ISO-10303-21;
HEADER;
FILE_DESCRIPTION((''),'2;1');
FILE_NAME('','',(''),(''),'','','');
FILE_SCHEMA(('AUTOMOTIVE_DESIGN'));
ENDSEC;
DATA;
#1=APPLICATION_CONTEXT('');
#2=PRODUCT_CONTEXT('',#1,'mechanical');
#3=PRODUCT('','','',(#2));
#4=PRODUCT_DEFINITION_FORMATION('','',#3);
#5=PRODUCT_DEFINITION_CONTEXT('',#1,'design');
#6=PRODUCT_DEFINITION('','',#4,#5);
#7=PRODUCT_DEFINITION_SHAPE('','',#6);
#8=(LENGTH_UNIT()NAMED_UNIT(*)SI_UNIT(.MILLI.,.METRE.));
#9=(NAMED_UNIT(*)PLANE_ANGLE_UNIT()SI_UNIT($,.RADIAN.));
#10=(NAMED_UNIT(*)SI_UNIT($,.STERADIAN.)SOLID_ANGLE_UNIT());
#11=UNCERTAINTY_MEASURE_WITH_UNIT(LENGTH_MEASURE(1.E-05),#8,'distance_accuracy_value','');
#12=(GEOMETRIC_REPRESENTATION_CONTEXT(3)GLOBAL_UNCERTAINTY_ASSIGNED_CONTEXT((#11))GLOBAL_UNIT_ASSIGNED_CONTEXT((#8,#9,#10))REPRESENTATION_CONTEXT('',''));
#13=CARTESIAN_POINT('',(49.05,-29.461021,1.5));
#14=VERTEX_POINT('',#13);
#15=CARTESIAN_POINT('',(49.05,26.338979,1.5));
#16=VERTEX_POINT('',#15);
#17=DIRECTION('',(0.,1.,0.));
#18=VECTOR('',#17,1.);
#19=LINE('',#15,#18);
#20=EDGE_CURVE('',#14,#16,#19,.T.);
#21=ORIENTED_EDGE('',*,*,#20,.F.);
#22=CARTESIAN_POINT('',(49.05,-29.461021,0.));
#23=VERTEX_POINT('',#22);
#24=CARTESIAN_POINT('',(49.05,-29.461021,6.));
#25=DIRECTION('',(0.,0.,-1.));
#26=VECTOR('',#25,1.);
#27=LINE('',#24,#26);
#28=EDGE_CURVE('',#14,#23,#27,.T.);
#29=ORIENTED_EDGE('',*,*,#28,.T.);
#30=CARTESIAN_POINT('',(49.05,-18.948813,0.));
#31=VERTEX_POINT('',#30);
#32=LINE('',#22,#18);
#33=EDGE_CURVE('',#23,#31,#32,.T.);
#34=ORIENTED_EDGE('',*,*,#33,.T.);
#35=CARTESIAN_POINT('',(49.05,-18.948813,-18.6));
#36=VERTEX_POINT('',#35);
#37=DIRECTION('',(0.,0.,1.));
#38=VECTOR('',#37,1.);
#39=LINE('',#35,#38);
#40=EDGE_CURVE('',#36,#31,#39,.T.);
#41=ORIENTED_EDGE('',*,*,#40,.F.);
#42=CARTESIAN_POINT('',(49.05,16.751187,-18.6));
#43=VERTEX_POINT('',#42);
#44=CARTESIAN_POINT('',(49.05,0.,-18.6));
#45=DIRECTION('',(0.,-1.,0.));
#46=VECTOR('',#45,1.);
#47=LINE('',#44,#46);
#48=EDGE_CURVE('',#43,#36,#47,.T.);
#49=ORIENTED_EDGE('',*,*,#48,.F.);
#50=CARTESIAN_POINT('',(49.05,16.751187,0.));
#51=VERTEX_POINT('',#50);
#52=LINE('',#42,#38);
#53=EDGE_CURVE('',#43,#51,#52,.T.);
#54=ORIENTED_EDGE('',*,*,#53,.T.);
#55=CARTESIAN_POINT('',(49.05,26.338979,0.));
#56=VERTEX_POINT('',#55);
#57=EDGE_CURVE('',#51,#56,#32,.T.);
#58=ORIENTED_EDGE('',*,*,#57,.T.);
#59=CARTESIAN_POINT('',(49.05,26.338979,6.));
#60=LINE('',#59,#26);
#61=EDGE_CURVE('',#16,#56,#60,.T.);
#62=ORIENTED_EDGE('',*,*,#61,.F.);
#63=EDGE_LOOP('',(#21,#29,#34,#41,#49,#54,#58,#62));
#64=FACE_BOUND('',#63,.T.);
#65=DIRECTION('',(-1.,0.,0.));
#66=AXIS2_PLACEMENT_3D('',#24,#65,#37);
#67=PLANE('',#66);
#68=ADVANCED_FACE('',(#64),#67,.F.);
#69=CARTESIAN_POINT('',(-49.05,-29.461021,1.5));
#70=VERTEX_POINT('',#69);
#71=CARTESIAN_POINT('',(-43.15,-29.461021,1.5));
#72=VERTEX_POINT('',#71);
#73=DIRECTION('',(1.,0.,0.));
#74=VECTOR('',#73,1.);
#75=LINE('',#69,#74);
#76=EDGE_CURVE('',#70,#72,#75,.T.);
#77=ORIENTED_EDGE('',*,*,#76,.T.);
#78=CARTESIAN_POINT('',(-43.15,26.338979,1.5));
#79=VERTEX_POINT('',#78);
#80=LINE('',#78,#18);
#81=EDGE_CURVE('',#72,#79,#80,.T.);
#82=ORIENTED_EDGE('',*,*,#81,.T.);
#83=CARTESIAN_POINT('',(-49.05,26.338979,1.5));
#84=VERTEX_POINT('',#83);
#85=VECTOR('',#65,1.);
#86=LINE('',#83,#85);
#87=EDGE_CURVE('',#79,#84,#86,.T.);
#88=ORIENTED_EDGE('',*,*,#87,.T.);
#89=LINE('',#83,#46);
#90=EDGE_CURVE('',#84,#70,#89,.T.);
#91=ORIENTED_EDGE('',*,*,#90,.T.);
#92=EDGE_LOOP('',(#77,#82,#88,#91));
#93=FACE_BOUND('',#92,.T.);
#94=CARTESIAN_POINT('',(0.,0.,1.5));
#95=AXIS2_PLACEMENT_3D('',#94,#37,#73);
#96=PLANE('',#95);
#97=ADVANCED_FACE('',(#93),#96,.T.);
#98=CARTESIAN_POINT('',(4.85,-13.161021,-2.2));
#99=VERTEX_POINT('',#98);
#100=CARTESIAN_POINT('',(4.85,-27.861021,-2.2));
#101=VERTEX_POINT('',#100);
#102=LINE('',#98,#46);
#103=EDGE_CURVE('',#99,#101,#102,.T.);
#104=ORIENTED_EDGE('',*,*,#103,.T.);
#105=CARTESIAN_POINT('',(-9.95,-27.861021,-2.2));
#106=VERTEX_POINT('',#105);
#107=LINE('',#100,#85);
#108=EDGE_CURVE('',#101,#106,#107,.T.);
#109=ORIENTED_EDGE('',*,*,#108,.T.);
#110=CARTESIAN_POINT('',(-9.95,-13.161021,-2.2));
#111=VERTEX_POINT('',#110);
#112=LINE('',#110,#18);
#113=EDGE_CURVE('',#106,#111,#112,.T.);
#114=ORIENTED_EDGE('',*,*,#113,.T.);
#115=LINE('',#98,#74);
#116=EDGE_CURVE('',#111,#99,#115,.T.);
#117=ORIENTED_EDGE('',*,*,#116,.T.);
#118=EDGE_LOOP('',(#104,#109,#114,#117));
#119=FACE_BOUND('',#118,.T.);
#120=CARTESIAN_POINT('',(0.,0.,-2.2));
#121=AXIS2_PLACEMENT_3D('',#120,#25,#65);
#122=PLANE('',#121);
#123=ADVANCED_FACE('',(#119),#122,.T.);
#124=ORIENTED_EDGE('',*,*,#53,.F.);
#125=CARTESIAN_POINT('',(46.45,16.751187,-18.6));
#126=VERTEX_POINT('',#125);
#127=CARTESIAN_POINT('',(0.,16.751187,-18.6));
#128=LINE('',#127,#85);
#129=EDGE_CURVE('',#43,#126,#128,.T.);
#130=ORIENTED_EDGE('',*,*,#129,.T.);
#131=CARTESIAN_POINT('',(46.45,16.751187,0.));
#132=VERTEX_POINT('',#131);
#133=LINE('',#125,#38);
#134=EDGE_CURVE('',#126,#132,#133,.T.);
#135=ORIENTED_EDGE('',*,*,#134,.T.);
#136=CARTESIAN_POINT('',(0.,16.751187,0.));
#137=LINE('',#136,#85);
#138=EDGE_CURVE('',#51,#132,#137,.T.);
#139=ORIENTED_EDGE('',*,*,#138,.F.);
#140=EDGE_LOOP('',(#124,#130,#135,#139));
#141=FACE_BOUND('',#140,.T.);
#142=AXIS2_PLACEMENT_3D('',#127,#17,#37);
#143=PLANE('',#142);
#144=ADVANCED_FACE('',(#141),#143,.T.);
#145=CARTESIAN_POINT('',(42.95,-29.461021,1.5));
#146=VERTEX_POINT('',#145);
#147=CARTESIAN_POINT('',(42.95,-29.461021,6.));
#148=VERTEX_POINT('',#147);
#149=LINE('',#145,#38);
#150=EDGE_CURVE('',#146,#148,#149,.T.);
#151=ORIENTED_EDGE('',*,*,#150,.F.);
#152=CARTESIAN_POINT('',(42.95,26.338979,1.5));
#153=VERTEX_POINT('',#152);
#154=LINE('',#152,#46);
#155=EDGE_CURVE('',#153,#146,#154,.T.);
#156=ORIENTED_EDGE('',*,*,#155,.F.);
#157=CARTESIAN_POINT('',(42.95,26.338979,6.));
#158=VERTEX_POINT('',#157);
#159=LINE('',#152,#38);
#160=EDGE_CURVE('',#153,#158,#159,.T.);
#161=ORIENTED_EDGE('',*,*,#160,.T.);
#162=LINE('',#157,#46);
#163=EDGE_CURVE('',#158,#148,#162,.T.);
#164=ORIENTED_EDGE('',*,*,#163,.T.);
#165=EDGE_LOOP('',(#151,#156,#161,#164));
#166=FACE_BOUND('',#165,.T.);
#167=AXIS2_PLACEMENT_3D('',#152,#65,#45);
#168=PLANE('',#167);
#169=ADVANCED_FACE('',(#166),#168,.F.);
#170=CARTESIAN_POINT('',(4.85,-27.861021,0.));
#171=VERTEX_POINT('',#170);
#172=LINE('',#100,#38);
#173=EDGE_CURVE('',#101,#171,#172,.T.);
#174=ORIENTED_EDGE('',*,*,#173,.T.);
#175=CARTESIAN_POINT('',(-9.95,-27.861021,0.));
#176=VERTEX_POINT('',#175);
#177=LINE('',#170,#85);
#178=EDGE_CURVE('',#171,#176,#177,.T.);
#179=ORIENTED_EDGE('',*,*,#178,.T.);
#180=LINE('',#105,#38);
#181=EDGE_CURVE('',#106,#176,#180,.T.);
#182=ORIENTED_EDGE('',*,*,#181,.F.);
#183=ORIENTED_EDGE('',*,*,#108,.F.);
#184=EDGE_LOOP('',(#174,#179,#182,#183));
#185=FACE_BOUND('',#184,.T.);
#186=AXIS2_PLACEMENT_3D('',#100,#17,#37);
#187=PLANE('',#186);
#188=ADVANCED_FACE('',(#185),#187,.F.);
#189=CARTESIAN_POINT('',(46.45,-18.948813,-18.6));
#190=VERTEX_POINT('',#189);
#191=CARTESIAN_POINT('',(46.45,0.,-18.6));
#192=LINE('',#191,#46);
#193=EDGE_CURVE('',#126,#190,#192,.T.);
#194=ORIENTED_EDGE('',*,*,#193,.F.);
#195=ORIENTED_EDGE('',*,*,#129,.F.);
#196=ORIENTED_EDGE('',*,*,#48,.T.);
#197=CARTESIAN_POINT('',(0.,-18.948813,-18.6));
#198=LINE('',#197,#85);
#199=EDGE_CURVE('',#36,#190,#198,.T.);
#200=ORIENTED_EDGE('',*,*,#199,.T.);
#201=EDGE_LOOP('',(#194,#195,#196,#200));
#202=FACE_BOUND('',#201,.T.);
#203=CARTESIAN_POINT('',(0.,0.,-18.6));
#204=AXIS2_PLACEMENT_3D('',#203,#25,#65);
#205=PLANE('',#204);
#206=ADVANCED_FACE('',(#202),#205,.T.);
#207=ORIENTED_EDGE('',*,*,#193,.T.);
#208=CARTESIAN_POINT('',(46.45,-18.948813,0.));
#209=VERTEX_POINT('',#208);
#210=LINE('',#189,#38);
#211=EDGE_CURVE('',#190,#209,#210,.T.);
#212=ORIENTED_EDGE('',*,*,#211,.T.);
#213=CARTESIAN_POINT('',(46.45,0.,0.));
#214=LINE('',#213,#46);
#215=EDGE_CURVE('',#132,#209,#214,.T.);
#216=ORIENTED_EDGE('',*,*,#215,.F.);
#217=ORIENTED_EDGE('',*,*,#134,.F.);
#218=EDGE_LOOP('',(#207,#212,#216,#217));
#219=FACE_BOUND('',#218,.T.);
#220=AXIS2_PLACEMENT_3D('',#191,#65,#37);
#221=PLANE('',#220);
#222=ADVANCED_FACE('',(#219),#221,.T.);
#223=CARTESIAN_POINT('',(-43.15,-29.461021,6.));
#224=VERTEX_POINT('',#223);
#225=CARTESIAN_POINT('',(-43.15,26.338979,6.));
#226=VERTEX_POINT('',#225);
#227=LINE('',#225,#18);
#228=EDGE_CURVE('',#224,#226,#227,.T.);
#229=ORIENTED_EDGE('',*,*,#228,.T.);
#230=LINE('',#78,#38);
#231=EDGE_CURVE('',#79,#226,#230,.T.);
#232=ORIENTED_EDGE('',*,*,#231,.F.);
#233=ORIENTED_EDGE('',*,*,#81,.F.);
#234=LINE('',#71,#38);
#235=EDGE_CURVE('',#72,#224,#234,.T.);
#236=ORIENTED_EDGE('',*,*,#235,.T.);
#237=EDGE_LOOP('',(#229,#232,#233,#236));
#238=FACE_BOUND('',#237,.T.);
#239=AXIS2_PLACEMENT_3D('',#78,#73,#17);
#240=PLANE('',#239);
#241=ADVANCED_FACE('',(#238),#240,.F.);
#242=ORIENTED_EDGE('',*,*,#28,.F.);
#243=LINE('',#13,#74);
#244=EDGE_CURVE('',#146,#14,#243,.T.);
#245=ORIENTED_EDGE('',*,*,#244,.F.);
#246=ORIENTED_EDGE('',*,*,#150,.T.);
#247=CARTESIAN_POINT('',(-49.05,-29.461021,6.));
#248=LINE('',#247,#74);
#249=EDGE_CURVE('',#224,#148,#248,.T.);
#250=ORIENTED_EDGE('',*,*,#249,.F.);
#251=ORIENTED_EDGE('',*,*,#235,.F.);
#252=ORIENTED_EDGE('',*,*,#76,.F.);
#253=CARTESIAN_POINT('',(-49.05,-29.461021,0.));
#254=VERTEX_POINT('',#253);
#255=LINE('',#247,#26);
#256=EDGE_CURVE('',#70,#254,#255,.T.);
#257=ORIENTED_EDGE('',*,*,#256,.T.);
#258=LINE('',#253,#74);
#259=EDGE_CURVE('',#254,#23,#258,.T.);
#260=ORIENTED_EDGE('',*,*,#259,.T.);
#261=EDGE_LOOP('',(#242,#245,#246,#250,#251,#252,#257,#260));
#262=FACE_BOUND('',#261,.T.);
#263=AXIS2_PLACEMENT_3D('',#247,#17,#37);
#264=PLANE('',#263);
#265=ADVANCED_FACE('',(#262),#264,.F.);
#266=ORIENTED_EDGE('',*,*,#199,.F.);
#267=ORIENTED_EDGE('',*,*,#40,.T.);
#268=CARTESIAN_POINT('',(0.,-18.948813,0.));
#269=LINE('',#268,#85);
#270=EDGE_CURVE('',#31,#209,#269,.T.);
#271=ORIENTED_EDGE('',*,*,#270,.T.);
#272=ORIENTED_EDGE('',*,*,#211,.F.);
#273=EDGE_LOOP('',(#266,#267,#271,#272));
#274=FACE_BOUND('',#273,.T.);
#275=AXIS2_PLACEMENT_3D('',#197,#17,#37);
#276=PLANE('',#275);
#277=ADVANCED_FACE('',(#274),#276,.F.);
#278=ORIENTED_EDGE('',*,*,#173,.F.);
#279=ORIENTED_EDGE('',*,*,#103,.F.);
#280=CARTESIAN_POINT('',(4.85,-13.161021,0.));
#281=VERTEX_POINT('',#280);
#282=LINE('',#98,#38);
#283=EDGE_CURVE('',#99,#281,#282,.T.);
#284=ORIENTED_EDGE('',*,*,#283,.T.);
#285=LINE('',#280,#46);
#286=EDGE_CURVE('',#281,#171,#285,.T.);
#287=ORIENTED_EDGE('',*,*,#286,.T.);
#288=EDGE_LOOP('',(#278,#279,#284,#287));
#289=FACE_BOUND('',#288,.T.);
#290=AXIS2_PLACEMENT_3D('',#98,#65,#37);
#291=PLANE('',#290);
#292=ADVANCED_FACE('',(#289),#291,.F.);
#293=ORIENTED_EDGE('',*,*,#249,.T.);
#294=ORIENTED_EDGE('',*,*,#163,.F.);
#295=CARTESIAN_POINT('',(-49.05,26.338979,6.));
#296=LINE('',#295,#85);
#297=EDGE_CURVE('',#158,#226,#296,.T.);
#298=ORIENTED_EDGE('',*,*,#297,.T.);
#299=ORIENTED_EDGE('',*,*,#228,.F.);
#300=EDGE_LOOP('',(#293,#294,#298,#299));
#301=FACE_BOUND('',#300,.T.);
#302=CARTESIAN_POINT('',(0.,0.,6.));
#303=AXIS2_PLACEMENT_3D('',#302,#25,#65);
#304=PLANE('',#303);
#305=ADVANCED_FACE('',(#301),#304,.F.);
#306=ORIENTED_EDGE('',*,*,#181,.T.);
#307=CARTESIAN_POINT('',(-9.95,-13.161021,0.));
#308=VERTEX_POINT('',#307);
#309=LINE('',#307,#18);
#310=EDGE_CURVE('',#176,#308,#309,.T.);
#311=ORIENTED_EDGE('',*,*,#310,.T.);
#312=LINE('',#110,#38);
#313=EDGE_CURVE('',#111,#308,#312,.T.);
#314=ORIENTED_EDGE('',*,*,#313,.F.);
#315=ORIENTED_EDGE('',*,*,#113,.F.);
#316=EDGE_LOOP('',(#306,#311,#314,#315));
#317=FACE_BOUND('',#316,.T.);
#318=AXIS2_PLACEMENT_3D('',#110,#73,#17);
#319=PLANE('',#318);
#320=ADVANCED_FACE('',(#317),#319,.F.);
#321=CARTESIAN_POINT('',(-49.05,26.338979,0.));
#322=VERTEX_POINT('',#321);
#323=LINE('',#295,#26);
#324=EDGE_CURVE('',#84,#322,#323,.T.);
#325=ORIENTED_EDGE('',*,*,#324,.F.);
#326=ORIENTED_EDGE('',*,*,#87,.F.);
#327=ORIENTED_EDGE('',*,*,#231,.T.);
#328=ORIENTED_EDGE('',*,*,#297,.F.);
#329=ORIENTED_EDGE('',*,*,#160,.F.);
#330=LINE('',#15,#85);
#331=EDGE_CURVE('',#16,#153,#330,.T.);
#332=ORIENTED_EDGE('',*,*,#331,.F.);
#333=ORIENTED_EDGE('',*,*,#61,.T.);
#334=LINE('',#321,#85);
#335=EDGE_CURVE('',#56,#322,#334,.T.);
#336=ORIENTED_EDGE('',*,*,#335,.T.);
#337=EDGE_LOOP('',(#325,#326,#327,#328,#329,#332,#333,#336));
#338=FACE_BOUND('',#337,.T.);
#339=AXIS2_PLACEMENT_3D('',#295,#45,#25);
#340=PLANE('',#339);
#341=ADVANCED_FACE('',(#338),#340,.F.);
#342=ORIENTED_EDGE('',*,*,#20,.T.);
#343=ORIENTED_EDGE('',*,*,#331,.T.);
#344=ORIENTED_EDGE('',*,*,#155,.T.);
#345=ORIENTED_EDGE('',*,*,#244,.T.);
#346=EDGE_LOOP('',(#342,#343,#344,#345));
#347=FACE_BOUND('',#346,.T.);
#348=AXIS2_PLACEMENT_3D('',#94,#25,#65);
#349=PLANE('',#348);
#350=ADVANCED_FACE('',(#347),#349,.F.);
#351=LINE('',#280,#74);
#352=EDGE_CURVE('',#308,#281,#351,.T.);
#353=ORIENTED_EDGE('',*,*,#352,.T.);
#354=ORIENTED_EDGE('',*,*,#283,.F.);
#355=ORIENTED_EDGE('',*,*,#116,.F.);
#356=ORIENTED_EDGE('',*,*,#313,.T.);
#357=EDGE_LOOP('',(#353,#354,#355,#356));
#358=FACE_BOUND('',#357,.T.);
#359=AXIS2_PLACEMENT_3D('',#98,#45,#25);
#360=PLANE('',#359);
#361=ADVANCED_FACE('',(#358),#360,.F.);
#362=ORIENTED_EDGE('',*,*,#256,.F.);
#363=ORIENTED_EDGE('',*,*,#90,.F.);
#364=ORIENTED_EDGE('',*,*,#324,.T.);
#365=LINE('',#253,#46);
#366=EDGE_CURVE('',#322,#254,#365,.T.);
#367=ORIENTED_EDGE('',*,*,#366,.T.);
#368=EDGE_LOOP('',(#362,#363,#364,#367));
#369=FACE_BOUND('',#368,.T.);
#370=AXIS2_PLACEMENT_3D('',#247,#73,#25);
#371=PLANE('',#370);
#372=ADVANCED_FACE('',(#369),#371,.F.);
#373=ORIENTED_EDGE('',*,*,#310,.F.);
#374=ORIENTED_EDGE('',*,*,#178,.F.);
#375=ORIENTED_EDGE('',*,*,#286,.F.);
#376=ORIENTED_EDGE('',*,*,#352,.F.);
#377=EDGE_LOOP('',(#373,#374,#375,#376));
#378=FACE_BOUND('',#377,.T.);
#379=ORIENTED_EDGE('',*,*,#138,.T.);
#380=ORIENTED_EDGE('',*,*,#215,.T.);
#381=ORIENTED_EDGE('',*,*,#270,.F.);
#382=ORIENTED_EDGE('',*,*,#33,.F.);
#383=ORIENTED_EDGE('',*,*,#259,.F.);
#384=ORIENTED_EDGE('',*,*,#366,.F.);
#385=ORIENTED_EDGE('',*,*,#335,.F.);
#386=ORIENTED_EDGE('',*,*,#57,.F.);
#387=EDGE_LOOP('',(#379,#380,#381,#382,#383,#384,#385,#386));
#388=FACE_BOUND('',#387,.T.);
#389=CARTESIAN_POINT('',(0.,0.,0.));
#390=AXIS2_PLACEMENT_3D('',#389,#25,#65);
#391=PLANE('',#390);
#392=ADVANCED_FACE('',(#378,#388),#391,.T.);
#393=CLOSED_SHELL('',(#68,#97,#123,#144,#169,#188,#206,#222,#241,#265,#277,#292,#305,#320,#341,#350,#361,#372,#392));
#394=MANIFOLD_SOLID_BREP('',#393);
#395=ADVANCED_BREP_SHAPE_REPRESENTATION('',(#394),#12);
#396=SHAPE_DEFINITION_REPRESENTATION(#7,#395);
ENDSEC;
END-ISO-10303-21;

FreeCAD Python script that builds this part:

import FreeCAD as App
import Part
import Sketcher
Q = App.Units.Quantity


def add_polygon(sketch, points):
    """Adds a closed chain of lines whose ends are joined by coincident constraints."""
    first, n = sketch.GeometryCount, len(points)
    for a, b in zip(points, points[1:] + points[:1]):
        sketch.addGeometry(Part.LineSegment(App.Vector(*a, 0), App.Vector(*b, 0)), False)
    for i in range(n):
        sketch.addConstraint(Sketcher.Constraint("Coincident", first + i, 2, first + (i + 1) % n, 1))

doc = App.newDocument("Part")
body = doc.addObject("PartDesign::Body", "Body")

# Sketch on XY plane
sketch1 = body.newObject("Sketcher::SketchObject", "Sketch")
sketch1.AttachmentSupport = (doc.getObject("XY_Plane"), [""])
sketch1.MapMode = "FlatFace"
add_polygon(sketch1, [(-49, 26), (-49, -29), (49, -29), (49, 26)])  # lines 0-3
sketch1.addConstraint([
    Sketcher.Constraint("Vertical", 0),
    Sketcher.Constraint("Horizontal", 1),
    Sketcher.Constraint("Vertical", 2),
    Sketcher.Constraint("Horizontal", 3),
    Sketcher.Constraint("DistanceX", 1, 1, 1, 2, Q("98.1 mm")),
    Sketcher.Constraint("DistanceY", 0, 2, 0, 1, Q("55.8 mm")),
    Sketcher.Constraint("DistanceX", 0, 2, -1, 1, Q("49.05 mm")),
    Sketcher.Constraint("DistanceY", 0, 2, -1, 1, Q("29.461021 mm")),
])
pad1 = body.newObject("PartDesign::Pad", "Pad")
pad1.Profile = sketch1
pad1.Length = 6

# Sketch on XY plane
sketch2 = body.newObject("Sketcher::SketchObject", "Sketch001")
sketch2.AttachmentSupport = (doc.getObject("XY_Plane"), [""])
sketch2.MapMode = "FlatFace"
sketch2.AttachmentOffset = App.Placement(App.Vector(0, 0, 6), App.Rotation())
add_polygon(sketch2, [(-49, 26), (-49, -29), (-43, -29), (-43, 26)])  # lines 0-3
add_polygon(sketch2, [(43, 26), (43, -29), (49, -29), (49, 26)])  # lines 4-7
sketch2.addConstraint([
    Sketcher.Constraint("Vertical", 0),
    Sketcher.Constraint("Horizontal", 1),
    Sketcher.Constraint("Vertical", 2),
    Sketcher.Constraint("Horizontal", 3),
    Sketcher.Constraint("Vertical", 4),
    Sketcher.Constraint("Horizontal", 5),
    Sketcher.Constraint("Vertical", 6),
    Sketcher.Constraint("Horizontal", 7),
    Sketcher.Constraint("Symmetric", 0, 2, 5, 2, -2),
    Sketcher.Constraint("Horizontal", 3, 2, 6, 2),
    Sketcher.Constraint("DistanceX", 1, 1, 1, 2, Q("5.9 mm")),
    Sketcher.Constraint("DistanceX", 5, 1, 5, 2, Q("6.1 mm")),
    Sketcher.Constraint("DistanceY", 0, 2, 0, 1, Q("55.8 mm")),
    Sketcher.Constraint("DistanceX", 0, 2, 4, 2, Q("92 mm")),
    Sketcher.Constraint("DistanceY", 0, 2, -1, 1, Q("29.461021 mm")),
])
pocket1 = body.newObject("PartDesign::Pocket", "Pocket")
pocket1.Profile = sketch2
pocket1.Length = 4.5

# Sketch on XY plane
sketch3 = body.newObject("Sketcher::SketchObject", "Sketch002")
sketch3.AttachmentSupport = (doc.getObject("XY_Plane"), [""])
sketch3.MapMode = "FlatFace"
sketch3.AttachmentOffset = App.Placement(App.Vector(0, 0, 6), App.Rotation())
add_polygon(sketch3, [(-9, -14), (-9, -28), (6, -28), (6, -14)])  # lines 0-3
sketch3.addConstraint([
    Sketcher.Constraint("Vertical", 0),
    Sketcher.Constraint("Horizontal", 1),
    Sketcher.Constraint("Vertical", 2),
    Sketcher.Constraint("Horizontal", 3),
    Sketcher.Constraint("DistanceX", 1, 1, 1, 2, Q("14.8 mm")),
    Sketcher.Constraint("DistanceY", 0, 2, 0, 1, Q("14.7 mm")),
    Sketcher.Constraint("DistanceX", 0, 2, -1, 1, Q("9.277851 mm")),
    Sketcher.Constraint("DistanceY", 0, 2, -1, 1, Q("28.372317 mm")),
])
pad2 = body.newObject("PartDesign::Pad", "Pad001")
pad2.Profile = sketch3
pad2.Length = 4.1
pad2.Reversed = True

# Sketch on XY plane
sketch4 = body.newObject("Sketcher::SketchObject", "Sketch003")
sketch4.AttachmentSupport = (doc.getObject("XY_Plane"), [""])
sketch4.MapMode = "FlatFace"
add_polygon(sketch4, [(49, 16.8), (49, -18.9), (46.5, -18.9), (46.5, 16.8)])  # lines 0-3
sketch4.addConstraint([
    Sketcher.Constraint("Vertical", 0),
    Sketcher.Constraint("Horizontal", 1),
    Sketcher.Constraint("Vertical", 2),
    Sketcher.Constraint("Horizontal", 3),
    Sketcher.Constraint("DistanceX", 1, 2, 1, 1, Q("2.6 mm")),
    Sketcher.Constraint("DistanceY", 0, 2, 0, 1, Q("35.7 mm")),
    Sketcher.Constraint("DistanceX", -1, 1, 0, 2, Q("49.05 mm")),
    Sketcher.Constraint("DistanceY", 0, 2, -1, 1, Q("18.948813 mm")),
])
pad3 = body.newObject("PartDesign::Pad", "Pad002")
pad3.Profile = sketch4
pad3.Length = 18.6
pad3.Reversed = True

# Sketch on XY plane
sketch5 = body.newObject("Sketcher::SketchObject", "Sketch004")
sketch5.AttachmentSupport = (doc.getObject("XY_Plane"), [""])
sketch5.MapMode = "FlatFace"
add_polygon(sketch5, [(5, -13), (5, -28), (-10, -28), (-10, -13)])  # lines 0-3
sketch5.addConstraint([
    Sketcher.Constraint("Vertical", 0),
    Sketcher.Constraint("Horizontal", 1),
    Sketcher.Constraint("Vertical", 2),
    Sketcher.Constraint("Horizontal", 3),
    Sketcher.Constraint("DistanceX", 1, 2, 1, 1, Q("14.8 mm")),
    Sketcher.Constraint("DistanceY", 0, 2, 0, 1, Q("14.7 mm")),
    Sketcher.Constraint("DistanceX", -1, 1, 0, 2, Q("4.85 mm")),
    Sketcher.Constraint("DistanceY", 0, 2, -1, 1, Q("27.861021 mm")),
])
pad4 = body.newObject("PartDesign::Pad", "Pad003")
pad4.Profile = sketch5
pad4.Length = 2.2
pad4.Reversed = True

doc.recompute()
